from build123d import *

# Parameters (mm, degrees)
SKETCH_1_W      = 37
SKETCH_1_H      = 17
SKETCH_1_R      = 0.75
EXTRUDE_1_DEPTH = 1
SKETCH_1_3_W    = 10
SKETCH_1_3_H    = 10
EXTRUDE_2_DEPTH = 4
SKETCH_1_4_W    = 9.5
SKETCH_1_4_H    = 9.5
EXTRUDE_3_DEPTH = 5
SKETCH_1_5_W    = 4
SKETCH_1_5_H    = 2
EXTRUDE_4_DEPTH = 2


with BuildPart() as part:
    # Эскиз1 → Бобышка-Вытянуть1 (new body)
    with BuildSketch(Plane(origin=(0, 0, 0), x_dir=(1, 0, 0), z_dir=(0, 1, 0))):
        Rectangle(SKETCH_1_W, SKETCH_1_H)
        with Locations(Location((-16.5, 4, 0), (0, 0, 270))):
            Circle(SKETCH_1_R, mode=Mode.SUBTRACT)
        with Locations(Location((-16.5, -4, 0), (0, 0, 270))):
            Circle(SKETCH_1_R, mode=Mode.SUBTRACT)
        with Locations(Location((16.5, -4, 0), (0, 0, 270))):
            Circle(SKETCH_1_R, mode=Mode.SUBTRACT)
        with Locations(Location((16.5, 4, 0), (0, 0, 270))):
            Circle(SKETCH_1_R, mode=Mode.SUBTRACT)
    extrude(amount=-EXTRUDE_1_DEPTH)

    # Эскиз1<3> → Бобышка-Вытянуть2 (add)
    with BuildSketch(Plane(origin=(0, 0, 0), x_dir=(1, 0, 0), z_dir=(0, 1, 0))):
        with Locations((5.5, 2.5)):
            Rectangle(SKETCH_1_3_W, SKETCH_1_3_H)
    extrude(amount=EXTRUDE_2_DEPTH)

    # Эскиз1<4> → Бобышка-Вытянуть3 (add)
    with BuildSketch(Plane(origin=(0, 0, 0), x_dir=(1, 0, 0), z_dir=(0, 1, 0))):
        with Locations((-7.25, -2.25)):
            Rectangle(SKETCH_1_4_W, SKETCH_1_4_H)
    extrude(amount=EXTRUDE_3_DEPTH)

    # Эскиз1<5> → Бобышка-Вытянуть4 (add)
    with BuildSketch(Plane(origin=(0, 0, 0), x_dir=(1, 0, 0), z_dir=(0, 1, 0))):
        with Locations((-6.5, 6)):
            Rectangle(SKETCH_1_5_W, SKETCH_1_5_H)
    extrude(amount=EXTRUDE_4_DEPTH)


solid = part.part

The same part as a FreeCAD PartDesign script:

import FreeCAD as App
import Part
import Sketcher
from FreeCAD import Vector
Q = App.Units.Quantity


def add_polygon(sketch, points):
    """Adds a closed chain of lines whose ends are joined by coincident constraints."""
    first, n = sketch.GeometryCount, len(points)
    for a, b in zip(points, points[1:] + points[:1]):
        sketch.addGeometry(Part.LineSegment(App.Vector(*a, 0), App.Vector(*b, 0)), False)
    for i in range(n):
        sketch.addConstraint(Sketcher.Constraint("Coincident", first + i, 2, first + (i + 1) % n, 1))

doc = App.newDocument("Part")
params = doc.addObject("Spreadsheet::Sheet", "Params")
for row, (alias, value) in enumerate([
    ("sketch1_diameter", "1.5 mm"),
    ("sketch1_width", "37 mm"),
    ("sketch1_height", "17 mm"),
    ("pad1_length", "1 mm"),
    ("sketch2_width", "10 mm"),
    ("pad2_length", "4 mm"),
    ("sketch3_width", "9.5 mm"),
    ("pad3_length", "5 mm"),
    ("sketch4_width", "4 mm"),
    ("sketch4_height", "2 mm"),
    ("pad4_length", "2 mm"),
], start=1):
    params.set(f"A{row}", alias)
    params.set(f"B{row}", "=" + value)
    params.setAlias(f"B{row}", alias)

body = doc.addObject("PartDesign::Body", "Body")

# Sketch on XZ plane
sketch1 = body.newObject("Sketcher::SketchObject", "Sketch")
sketch1.AttachmentSupport = (doc.getObject("XZ_Plane"), [""])
sketch1.MapMode = "FlatFace"
add_polygon(sketch1, [(-18.5, -8.5), (-18.5, 8.5), (18.5, 8.5), (18.5, -8.5)])  # lines 0-3
sketch1.addGeometry(Part.Circle(Vector(-16.5, 4, 0), Vector(0, 0, 1), 0.8), False)  # 4
sketch1.addGeometry(Part.Circle(Vector(16.5, 4, 0), Vector(0, 0, 1), 0.8), False)  # 5
sketch1.addGeometry(Part.Circle(Vector(-16.5, -4, 0), Vector(0, 0, 1), 0.8), False)  # 6
sketch1.addGeometry(Part.Circle(Vector(16.5, -4, 0), Vector(0, 0, 1), 0.8), False)  # 7
sketch1.addConstraint([
    Sketcher.Constraint("Vertical", 0),
    Sketcher.Constraint("Horizontal", 1),
    Sketcher.Constraint("Vertical", 2),
    Sketcher.Constraint("Horizontal", 3),
    Sketcher.Constraint("Equal", 4, 5),
    Sketcher.Constraint("Equal", 5, 6),
    Sketcher.Constraint("Equal", 6, 7),
    Sketcher.Constraint("Symmetric", 5, 3, 6, 3, -1, 1),
    Sketcher.Constraint("Symmetric", 4, 3, 7, 3, -1, 1),
    Sketcher.Constraint("Symmetric", 0, 2, 2, 2, -1, 1),
    Sketcher.Constraint("Symmetric", 4, 3, 5, 3, -2),
    Sketcher.Constraint("Diameter", 4, Q("1.5 mm")),
    Sketcher.Constraint("DistanceX", 1, 1, 1, 2, Q("37 mm")),
    Sketcher.Constraint("DistanceY", 0, 1, 0, 2, Q("17 mm")),
    Sketcher.Constraint("DistanceY", -1, 1, 4, 3, Q("4 mm")),
    Sketcher.Constraint("DistanceX", 4, 3, 5, 3, Q("33 mm")),
])
sketch1.setExpression("Constraints[15]", "Params.sketch1_diameter")
sketch1.setExpression("Constraints[16]", "Params.sketch1_width")
sketch1.setExpression("Constraints[17]", "Params.sketch1_height")
pad1 = body.newObject("PartDesign::Pad", "Pad")
pad1.Profile = sketch1
pad1.setExpression("Length", "Params.pad1_length")

# Sketch on XZ plane
sketch2 = body.newObject("Sketcher::SketchObject", "Sketch001")
sketch2.AttachmentSupport = (doc.getObject("XZ_Plane"), [""])
sketch2.MapMode = "FlatFace"
add_polygon(sketch2, [(0, -8), (0, 2), (10, 2), (10, -8)])  # lines 0-3
sketch2.addConstraint([
    Sketcher.Constraint("Vertical", 0),
    Sketcher.Constraint("Horizontal", 1),
    Sketcher.Constraint("Vertical", 2),
    Sketcher.Constraint("Horizontal", 3),
    Sketcher.Constraint("Equal", 3, 0),
    Sketcher.Constraint("DistanceX", 1, 1, 1, 2, Q("10 mm")),
    Sketcher.Constraint("DistanceX", -1, 1, 0, 2, Q("0.5 mm")),
    Sketcher.Constraint("DistanceY", -1, 1, 0, 2, Q("2.5 mm")),
])
sketch2.setExpression("Constraints[9]", "Params.sketch2_width")
pad2 = body.newObject("PartDesign::Pad", "Pad001")
pad2.Profile = sketch2
pad2.setExpression("Length", "Params.pad2_length")
pad2.Reversed = True

# Sketch on XZ plane
sketch3 = body.newObject("Sketcher::SketchObject", "Sketch002")
sketch3.AttachmentSupport = (doc.getObject("XZ_Plane"), [""])
sketch3.MapMode = "FlatFace"
add_polygon(sketch3, [(-12, -2), (-12, 7), (-2, 7), (-2, -2)])  # lines 0-3
sketch3.addConstraint([
    Sketcher.Constraint("Vertical", 0),
    Sketcher.Constraint("Horizontal", 1),
    Sketcher.Constraint("Vertical", 2),
    Sketcher.Constraint("Horizontal", 3),
    Sketcher.Constraint("Equal", 3, 0),
    Sketcher.Constraint("DistanceX", 1, 1, 1, 2, Q("9.5 mm")),
    Sketcher.Constraint("DistanceX", 0, 2, -1, 1, Q("12 mm")),
    Sketcher.Constraint("DistanceY", -1, 1, 0, 2, Q("7 mm")),
])
sketch3.setExpression("Constraints[9]", "Params.sketch3_width")
pad3 = body.newObject("PartDesign::Pad", "Pad002")
pad3.Profile = sketch3
pad3.setExpression("Length", "Params.pad3_length")
pad3.Reversed = True

# Sketch on XZ plane
sketch4 = body.newObject("Sketcher::SketchObject", "Sketch003")
sketch4.AttachmentSupport = (doc.getObject("XZ_Plane"), [""])
sketch4.MapMode = "FlatFace"
add_polygon(sketch4, [(-8.5, -7), (-8.5, -5), (-4.5, -5), (-4.5, -7)])  # lines 0-3
sketch4.addConstraint([
    Sketcher.Constraint("Vertical", 0),
    Sketcher.Constraint("Horizontal", 1),
    Sketcher.Constraint("Vertical", 2),
    Sketcher.Constraint("Horizontal", 3),
    Sketcher.Constraint("DistanceX", 1, 1, 1, 2, Q("4 mm")),
    Sketcher.Constraint("DistanceY", 0, 1, 0, 2, Q("2 mm")),
    Sketcher.Constraint("DistanceY", 0, 2, -1, 1, Q("5 mm")),
    Sketcher.Constraint("DistanceX", 0, 2, -1, 1, Q("8.5 mm")),
])
sketch4.setExpression("Constraints[8]", "Params.sketch4_width")
sketch4.setExpression("Constraints[9]", "Params.sketch4_height")
pad4 = body.newObject("PartDesign::Pad", "Pad003")
pad4.Profile = sketch4
pad4.setExpression("Length", "Params.pad4_length")
pad4.Reversed = True

doc.recompute()
